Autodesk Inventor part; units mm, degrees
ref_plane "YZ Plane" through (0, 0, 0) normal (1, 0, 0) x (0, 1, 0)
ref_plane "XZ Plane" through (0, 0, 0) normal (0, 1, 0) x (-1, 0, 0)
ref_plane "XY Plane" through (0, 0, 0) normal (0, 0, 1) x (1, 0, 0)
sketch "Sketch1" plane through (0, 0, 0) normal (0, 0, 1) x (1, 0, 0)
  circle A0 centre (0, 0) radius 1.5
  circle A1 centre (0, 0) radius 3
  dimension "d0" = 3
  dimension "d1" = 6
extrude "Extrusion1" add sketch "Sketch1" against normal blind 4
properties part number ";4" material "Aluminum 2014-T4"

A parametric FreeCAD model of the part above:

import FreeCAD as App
import Part
import Sketcher
from FreeCAD import Vector

doc = App.newDocument("Part")
body = doc.addObject("PartDesign::Body", "Body")

sketch1 = body.newObject("Sketcher::SketchObject", "Sketch")
sketch1.AttachmentSupport = (doc.getObject("XY_Plane"), [""])
sketch1.MapMode = "FlatFace"
sketch1.addGeometry([
    Part.Circle(Vector(0, 0, 0), Vector(0, 0, 1), 3),
    Part.Circle(Vector(0, 0, 0), Vector(0, 0, 1), 1.5),
], False)
sketch1.addConstraint([
    Sketcher.Constraint("Coincident", 0, 3, -1, 1),
    Sketcher.Constraint("Coincident", 1, 3, -1, 1),
    Sketcher.Constraint("Diameter", 0, 6.0),
    Sketcher.Constraint("Diameter", 1, 3.0),
])
pad1 = body.newObject("PartDesign::Pad", "Pad")
pad1.Profile = sketch1
pad1.Length = 4
pad1.Reversed = True

doc.recompute()
